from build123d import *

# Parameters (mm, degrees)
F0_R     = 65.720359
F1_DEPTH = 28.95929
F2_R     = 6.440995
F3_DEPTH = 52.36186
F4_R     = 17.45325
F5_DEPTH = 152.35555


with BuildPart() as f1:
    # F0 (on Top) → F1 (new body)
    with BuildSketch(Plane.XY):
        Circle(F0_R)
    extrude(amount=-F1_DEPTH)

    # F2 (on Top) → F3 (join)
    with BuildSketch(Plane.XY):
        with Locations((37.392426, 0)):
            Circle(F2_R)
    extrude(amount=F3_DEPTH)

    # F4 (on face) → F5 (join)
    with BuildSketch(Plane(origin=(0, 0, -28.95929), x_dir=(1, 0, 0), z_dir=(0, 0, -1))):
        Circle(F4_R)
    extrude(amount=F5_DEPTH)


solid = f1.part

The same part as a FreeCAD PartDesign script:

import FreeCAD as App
import Part
import Sketcher

doc = App.newDocument("Part")
body = doc.addObject("PartDesign::Body", "Body")

sketch1 = doc.addObject("Sketcher::SketchObject", "Sketch")
body.addObject(sketch1)
sketch1.AttachmentSupport = (doc.XY_Plane, [""])
sketch1.MapMode = "FlatFace"
sketch1.addGeometry(Part.Circle(App.Vector(0, 0, 0), App.Vector(0, 0, 1), 65.720359), False)
sketch1.addConstraint(Sketcher.Constraint("Coincident", 0, 3, -1, 1))
sketch1.addConstraint(Sketcher.Constraint("Diameter", 0, 131.440718))
pad1 = doc.addObject("PartDesign::Pad", "Pad")
body.addObject(pad1)
pad1.Profile = sketch1
pad1.Length = 28.95929
pad1.Reversed = True

sketch2 = doc.addObject("Sketcher::SketchObject", "Sketch001")
body.addObject(sketch2)
sketch2.AttachmentSupport = (doc.XY_Plane, [""])
sketch2.MapMode = "FlatFace"
sketch2.addGeometry(Part.Circle(App.Vector(37.392426, 0, 0), App.Vector(0, 0, 1), 6.440995), False)
sketch2.addConstraint(Sketcher.Constraint("PointOnObject", 0, 3, -1))
sketch2.addConstraint(Sketcher.Constraint("Diameter", 0, 12.88199))
sketch2.addConstraint(Sketcher.Constraint("DistanceX", -1, 1, 0, 3, 37.392426))
pad2 = doc.addObject("PartDesign::Pad", "Pad001")
body.addObject(pad2)
pad2.Profile = sketch2
pad2.Length = 52.36186

sketch3 = doc.addObject("Sketcher::SketchObject", "Sketch002")
body.addObject(sketch3)
sketch3.AttachmentSupport = (doc.XY_Plane, [""])
sketch3.MapMode = "FlatFace"
sketch3.AttachmentOffset = App.Placement(App.Vector(0, 0, -28.95929), App.Rotation())
sketch3.addGeometry(Part.Circle(App.Vector(0, 0, 0), App.Vector(0, 0, 1), 17.45325), False)
sketch3.addConstraint(Sketcher.Constraint("Coincident", 0, 3, -1, 1))
sketch3.addConstraint(Sketcher.Constraint("Diameter", 0, 34.9065))
pad3 = doc.addObject("PartDesign::Pad", "Pad002")
body.addObject(pad3)
pad3.Profile = sketch3
pad3.Length = 152.35555
pad3.Reversed = True

doc.recompute()
